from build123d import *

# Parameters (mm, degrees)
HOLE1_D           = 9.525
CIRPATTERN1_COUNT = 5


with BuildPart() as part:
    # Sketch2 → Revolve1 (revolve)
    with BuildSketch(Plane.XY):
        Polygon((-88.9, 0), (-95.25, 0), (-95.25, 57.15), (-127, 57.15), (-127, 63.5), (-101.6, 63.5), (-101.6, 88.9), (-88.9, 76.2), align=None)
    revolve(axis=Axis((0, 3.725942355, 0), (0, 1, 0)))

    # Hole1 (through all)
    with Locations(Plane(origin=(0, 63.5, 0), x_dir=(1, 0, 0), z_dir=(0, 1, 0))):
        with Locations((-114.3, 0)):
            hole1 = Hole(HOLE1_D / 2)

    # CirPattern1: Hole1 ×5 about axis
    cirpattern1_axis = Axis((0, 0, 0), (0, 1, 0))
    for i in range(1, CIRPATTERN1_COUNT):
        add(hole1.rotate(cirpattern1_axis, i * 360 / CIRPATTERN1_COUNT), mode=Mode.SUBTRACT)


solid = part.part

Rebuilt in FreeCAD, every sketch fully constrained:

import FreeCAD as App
import Part
import Sketcher

V = App.Vector
Q = App.Units.Quantity


def add_polygon(sketch, points):
    """Adds a closed chain of lines whose ends are joined by coincident constraints."""
    first, n = sketch.GeometryCount, len(points)
    for a, b in zip(points, points[1:] + points[:1]):
        sketch.addGeometry(Part.LineSegment(App.Vector(*a, 0), App.Vector(*b, 0)), False)
    for i in range(n):
        sketch.addConstraint(Sketcher.Constraint("Coincident", first + i, 2, first + (i + 1) % n, 1))

doc = App.newDocument("Part")
params = doc.addObject("Spreadsheet::Sheet", "Params")
for row, (alias, value) in enumerate([
    ("sketch1_width", "1 in"),
    ("sketch1_height", "3 in"),
    ("sketch1_width2", "0.25 in"),
    ("sketch1_width3", "1.25 in"),
    ("revolution_angle", "360 deg"),
    ("sketch2_diameter", "0.375 in"),
    ("hole_diameter", "0.375 in"),
], start=1):
    params.set(f"A{row}", alias)
    params.set(f"B{row}", "=" + value)
    params.setAlias(f"B{row}", alias)

body = doc.addObject("PartDesign::Body", "Body")

# Sketch on XY plane
sketch1 = body.newObject("Sketcher::SketchObject", "Sketch")
sketch1.AttachmentSupport = (doc.getObject("XY_Plane"), [""])
sketch1.MapMode = "FlatFace"
add_polygon(sketch1, [(-95, 0), (-89, 0), (-89, 76), (-102, 89), (-102, 64), (-127, 64), (-127, 57), (-95, 57)])  # lines 0-7
sketch1.addConstraint([
    Sketcher.Constraint("Horizontal", 0),
    Sketcher.Constraint("Vertical", 1),
    Sketcher.Constraint("Vertical", 3),
    Sketcher.Constraint("Horizontal", 4),
    Sketcher.Constraint("Vertical", 5),
    Sketcher.Constraint("Horizontal", 6),
    Sketcher.Constraint("Vertical", 7),
    Sketcher.Constraint("PointOnObject", 0, 2, -1),
    Sketcher.Constraint("Equal", 4, 3),
    Sketcher.Constraint("Equal", 0, 5),
    Sketcher.Constraint("DistanceX", 4, 2, 4, 1, Q("1 in")),
    Sketcher.Constraint("DistanceY", 1, 1, 1, 2, Q("3 in")),
    Sketcher.Constraint("DistanceX", 2, 2, -1, 1, Q("4 in")),
    Sketcher.Constraint("Angle", 2, Q("135 deg")),
    Sketcher.Constraint("DistanceX", 0, 1, 0, 2, Q("0.25 in")),
    Sketcher.Constraint("DistanceX", 6, 1, 6, 2, Q("1.25 in")),
])
sketch1.setExpression("Constraints[18]", "Params.sketch1_width")
sketch1.setExpression("Constraints[19]", "Params.sketch1_height")
sketch1.setExpression("Constraints[22]", "Params.sketch1_width2")
sketch1.setExpression("Constraints[23]", "Params.sketch1_width3")
revolution = body.newObject("PartDesign::Revolution", "Revolution")
revolution.Profile = sketch1
revolution.ReferenceAxis = (sketch1, ["V_Axis"])
revolution.setExpression("Angle", "Params.revolution_angle")

# Sketch on XZ plane
sketch2 = body.newObject("Sketcher::SketchObject", "Sketch001")
sketch2.AttachmentSupport = (doc.getObject("XZ_Plane"), [""])
sketch2.MapMode = "FlatFace"
sketch2.AttachmentOffset = App.Placement(V(0, 0, -2.5 * 25.4), App.Rotation())
sketch2.addGeometry(Part.Circle(V(-114.3, 0, 0), V(0, 0, 1), 4.8), False)
sketch2.addConstraint([
    Sketcher.Constraint("PointOnObject", 0, 3, -1),
    Sketcher.Constraint("Diameter", 0, Q("0.375 in")),
    Sketcher.Constraint("DistanceX", 0, 3, -1, 1, Q("4.5 in")),
])
sketch2.setExpression("Constraints[1]", "Params.sketch2_diameter")
doc.recompute()
hole = body.newObject("PartDesign::Hole", "Hole")
hole.Profile = sketch2
hole.ThreadType = "None"
hole.setExpression("Diameter", "Params.hole_diameter")
hole.DepthType = "ThroughAll"
hole.Reversed = True
doc.recompute()

polarpattern = body.newObject("PartDesign::PolarPattern", "PolarPattern")
polarpattern.Originals = [hole]
polarpattern.Axis = (doc.getObject("Y_Axis"), [""])
polarpattern.Angle = 360
polarpattern.Occurrences = 5
body.Tip = polarpattern

doc.recompute()
